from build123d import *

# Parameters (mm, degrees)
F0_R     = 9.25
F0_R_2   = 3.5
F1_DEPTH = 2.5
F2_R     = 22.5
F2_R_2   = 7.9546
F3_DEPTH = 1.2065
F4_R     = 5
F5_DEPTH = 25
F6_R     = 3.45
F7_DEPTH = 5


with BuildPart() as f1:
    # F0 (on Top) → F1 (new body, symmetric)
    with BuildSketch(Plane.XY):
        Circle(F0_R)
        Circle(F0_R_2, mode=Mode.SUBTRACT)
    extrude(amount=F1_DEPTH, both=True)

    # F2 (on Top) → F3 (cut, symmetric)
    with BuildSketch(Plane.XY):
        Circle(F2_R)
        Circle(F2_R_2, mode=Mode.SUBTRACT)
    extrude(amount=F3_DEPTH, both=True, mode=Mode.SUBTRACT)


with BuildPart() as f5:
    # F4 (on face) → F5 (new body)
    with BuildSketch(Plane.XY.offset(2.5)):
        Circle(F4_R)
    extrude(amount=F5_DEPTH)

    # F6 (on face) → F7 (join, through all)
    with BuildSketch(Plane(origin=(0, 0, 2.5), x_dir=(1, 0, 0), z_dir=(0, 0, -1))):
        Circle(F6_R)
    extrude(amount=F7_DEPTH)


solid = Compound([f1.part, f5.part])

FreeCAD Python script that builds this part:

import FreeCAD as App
import Part
import Sketcher
Q = App.Units.Quantity

doc = App.newDocument("Part")
body = doc.addObject("PartDesign::Body", "Body")

sketch1 = body.newObject("Sketcher::SketchObject", "Sketch")
sketch1.AttachmentSupport = (doc.getObject("XY_Plane"), [""])
sketch1.MapMode = "FlatFace"
sketch1.addGeometry(Part.Circle(App.Vector(0, 0, 0), App.Vector(0, 0, 1), 9.25), False)
sketch1.addGeometry(Part.Circle(App.Vector(0, 0, 0), App.Vector(0, 0, 1), 3.5), False)
sketch1.addConstraint(Sketcher.Constraint("Coincident", 0, 3, -1, 1))
sketch1.addConstraint(Sketcher.Constraint("Coincident", 1, 3, -1, 1))
sketch1.addConstraint(Sketcher.Constraint("Diameter", 1, Q("7 mm")))
sketch1.addConstraint(Sketcher.Constraint("Diameter", 0, Q("18.5 mm")))
pad1 = body.newObject("PartDesign::Pad", "Pad")
pad1.Profile = sketch1
pad1.Length = 5
pad1.Midplane = True

sketch2 = body.newObject("Sketcher::SketchObject", "Sketch001")
sketch2.AttachmentSupport = (doc.getObject("XY_Plane"), [""])
sketch2.MapMode = "FlatFace"
sketch2.addGeometry(Part.Circle(App.Vector(0, 0, 0), App.Vector(0, 0, 1), 22.5), False)
sketch2.addGeometry(Part.Circle(App.Vector(0, 0, 0), App.Vector(0, 0, 1), 7.9546), False)
sketch2.addConstraint(Sketcher.Constraint("Coincident", 0, 3, -1, 1))
sketch2.addConstraint(Sketcher.Constraint("Coincident", 1, 3, -1, 1))
sketch2.addConstraint(Sketcher.Constraint("Diameter", 0, Q("45 mm")))
sketch2.addConstraint(Sketcher.Constraint("Diameter", 1, Q("15.9092 mm")))
pocket1 = body.newObject("PartDesign::Pocket", "Pocket")
pocket1.Profile = sketch2
pocket1.Length = 2.413
pocket1.Midplane = True
body2 = doc.addObject("PartDesign::Body", "Body001")

sketch3 = body2.newObject("Sketcher::SketchObject", "Sketch002")
sketch3.AttachmentSupport = (doc.getObject("XY_Plane001"), [""])
sketch3.MapMode = "FlatFace"
sketch3.AttachmentOffset = App.Placement(App.Vector(0, 0, 2.5), App.Rotation())
sketch3.addGeometry(Part.Circle(App.Vector(0, 0, 0), App.Vector(0, 0, 1), 5), False)
sketch3.addConstraint(Sketcher.Constraint("Coincident", 0, 3, -1, 1))
sketch3.addConstraint(Sketcher.Constraint("Diameter", 0, Q("10 mm")))
pad2 = body2.newObject("PartDesign::Pad", "Pad001")
pad2.Profile = sketch3
pad2.Length = 25

sketch4 = body2.newObject("Sketcher::SketchObject", "Sketch003")
sketch4.AttachmentSupport = (doc.getObject("XY_Plane001"), [""])
sketch4.MapMode = "FlatFace"
sketch4.AttachmentOffset = App.Placement(App.Vector(0, 0, 2.5), App.Rotation())
sketch4.addGeometry(Part.Circle(App.Vector(0, 0, 0), App.Vector(0, 0, 1), 3.45), False)
sketch4.addConstraint(Sketcher.Constraint("Coincident", 0, 3, -1, 1))
sketch4.addConstraint(Sketcher.Constraint("Diameter", 0, Q("6.9 mm")))
pad3 = body2.newObject("PartDesign::Pad", "Pad002")
pad3.Profile = sketch4
pad3.Length = 5
pad3.Reversed = True

doc.recompute()
